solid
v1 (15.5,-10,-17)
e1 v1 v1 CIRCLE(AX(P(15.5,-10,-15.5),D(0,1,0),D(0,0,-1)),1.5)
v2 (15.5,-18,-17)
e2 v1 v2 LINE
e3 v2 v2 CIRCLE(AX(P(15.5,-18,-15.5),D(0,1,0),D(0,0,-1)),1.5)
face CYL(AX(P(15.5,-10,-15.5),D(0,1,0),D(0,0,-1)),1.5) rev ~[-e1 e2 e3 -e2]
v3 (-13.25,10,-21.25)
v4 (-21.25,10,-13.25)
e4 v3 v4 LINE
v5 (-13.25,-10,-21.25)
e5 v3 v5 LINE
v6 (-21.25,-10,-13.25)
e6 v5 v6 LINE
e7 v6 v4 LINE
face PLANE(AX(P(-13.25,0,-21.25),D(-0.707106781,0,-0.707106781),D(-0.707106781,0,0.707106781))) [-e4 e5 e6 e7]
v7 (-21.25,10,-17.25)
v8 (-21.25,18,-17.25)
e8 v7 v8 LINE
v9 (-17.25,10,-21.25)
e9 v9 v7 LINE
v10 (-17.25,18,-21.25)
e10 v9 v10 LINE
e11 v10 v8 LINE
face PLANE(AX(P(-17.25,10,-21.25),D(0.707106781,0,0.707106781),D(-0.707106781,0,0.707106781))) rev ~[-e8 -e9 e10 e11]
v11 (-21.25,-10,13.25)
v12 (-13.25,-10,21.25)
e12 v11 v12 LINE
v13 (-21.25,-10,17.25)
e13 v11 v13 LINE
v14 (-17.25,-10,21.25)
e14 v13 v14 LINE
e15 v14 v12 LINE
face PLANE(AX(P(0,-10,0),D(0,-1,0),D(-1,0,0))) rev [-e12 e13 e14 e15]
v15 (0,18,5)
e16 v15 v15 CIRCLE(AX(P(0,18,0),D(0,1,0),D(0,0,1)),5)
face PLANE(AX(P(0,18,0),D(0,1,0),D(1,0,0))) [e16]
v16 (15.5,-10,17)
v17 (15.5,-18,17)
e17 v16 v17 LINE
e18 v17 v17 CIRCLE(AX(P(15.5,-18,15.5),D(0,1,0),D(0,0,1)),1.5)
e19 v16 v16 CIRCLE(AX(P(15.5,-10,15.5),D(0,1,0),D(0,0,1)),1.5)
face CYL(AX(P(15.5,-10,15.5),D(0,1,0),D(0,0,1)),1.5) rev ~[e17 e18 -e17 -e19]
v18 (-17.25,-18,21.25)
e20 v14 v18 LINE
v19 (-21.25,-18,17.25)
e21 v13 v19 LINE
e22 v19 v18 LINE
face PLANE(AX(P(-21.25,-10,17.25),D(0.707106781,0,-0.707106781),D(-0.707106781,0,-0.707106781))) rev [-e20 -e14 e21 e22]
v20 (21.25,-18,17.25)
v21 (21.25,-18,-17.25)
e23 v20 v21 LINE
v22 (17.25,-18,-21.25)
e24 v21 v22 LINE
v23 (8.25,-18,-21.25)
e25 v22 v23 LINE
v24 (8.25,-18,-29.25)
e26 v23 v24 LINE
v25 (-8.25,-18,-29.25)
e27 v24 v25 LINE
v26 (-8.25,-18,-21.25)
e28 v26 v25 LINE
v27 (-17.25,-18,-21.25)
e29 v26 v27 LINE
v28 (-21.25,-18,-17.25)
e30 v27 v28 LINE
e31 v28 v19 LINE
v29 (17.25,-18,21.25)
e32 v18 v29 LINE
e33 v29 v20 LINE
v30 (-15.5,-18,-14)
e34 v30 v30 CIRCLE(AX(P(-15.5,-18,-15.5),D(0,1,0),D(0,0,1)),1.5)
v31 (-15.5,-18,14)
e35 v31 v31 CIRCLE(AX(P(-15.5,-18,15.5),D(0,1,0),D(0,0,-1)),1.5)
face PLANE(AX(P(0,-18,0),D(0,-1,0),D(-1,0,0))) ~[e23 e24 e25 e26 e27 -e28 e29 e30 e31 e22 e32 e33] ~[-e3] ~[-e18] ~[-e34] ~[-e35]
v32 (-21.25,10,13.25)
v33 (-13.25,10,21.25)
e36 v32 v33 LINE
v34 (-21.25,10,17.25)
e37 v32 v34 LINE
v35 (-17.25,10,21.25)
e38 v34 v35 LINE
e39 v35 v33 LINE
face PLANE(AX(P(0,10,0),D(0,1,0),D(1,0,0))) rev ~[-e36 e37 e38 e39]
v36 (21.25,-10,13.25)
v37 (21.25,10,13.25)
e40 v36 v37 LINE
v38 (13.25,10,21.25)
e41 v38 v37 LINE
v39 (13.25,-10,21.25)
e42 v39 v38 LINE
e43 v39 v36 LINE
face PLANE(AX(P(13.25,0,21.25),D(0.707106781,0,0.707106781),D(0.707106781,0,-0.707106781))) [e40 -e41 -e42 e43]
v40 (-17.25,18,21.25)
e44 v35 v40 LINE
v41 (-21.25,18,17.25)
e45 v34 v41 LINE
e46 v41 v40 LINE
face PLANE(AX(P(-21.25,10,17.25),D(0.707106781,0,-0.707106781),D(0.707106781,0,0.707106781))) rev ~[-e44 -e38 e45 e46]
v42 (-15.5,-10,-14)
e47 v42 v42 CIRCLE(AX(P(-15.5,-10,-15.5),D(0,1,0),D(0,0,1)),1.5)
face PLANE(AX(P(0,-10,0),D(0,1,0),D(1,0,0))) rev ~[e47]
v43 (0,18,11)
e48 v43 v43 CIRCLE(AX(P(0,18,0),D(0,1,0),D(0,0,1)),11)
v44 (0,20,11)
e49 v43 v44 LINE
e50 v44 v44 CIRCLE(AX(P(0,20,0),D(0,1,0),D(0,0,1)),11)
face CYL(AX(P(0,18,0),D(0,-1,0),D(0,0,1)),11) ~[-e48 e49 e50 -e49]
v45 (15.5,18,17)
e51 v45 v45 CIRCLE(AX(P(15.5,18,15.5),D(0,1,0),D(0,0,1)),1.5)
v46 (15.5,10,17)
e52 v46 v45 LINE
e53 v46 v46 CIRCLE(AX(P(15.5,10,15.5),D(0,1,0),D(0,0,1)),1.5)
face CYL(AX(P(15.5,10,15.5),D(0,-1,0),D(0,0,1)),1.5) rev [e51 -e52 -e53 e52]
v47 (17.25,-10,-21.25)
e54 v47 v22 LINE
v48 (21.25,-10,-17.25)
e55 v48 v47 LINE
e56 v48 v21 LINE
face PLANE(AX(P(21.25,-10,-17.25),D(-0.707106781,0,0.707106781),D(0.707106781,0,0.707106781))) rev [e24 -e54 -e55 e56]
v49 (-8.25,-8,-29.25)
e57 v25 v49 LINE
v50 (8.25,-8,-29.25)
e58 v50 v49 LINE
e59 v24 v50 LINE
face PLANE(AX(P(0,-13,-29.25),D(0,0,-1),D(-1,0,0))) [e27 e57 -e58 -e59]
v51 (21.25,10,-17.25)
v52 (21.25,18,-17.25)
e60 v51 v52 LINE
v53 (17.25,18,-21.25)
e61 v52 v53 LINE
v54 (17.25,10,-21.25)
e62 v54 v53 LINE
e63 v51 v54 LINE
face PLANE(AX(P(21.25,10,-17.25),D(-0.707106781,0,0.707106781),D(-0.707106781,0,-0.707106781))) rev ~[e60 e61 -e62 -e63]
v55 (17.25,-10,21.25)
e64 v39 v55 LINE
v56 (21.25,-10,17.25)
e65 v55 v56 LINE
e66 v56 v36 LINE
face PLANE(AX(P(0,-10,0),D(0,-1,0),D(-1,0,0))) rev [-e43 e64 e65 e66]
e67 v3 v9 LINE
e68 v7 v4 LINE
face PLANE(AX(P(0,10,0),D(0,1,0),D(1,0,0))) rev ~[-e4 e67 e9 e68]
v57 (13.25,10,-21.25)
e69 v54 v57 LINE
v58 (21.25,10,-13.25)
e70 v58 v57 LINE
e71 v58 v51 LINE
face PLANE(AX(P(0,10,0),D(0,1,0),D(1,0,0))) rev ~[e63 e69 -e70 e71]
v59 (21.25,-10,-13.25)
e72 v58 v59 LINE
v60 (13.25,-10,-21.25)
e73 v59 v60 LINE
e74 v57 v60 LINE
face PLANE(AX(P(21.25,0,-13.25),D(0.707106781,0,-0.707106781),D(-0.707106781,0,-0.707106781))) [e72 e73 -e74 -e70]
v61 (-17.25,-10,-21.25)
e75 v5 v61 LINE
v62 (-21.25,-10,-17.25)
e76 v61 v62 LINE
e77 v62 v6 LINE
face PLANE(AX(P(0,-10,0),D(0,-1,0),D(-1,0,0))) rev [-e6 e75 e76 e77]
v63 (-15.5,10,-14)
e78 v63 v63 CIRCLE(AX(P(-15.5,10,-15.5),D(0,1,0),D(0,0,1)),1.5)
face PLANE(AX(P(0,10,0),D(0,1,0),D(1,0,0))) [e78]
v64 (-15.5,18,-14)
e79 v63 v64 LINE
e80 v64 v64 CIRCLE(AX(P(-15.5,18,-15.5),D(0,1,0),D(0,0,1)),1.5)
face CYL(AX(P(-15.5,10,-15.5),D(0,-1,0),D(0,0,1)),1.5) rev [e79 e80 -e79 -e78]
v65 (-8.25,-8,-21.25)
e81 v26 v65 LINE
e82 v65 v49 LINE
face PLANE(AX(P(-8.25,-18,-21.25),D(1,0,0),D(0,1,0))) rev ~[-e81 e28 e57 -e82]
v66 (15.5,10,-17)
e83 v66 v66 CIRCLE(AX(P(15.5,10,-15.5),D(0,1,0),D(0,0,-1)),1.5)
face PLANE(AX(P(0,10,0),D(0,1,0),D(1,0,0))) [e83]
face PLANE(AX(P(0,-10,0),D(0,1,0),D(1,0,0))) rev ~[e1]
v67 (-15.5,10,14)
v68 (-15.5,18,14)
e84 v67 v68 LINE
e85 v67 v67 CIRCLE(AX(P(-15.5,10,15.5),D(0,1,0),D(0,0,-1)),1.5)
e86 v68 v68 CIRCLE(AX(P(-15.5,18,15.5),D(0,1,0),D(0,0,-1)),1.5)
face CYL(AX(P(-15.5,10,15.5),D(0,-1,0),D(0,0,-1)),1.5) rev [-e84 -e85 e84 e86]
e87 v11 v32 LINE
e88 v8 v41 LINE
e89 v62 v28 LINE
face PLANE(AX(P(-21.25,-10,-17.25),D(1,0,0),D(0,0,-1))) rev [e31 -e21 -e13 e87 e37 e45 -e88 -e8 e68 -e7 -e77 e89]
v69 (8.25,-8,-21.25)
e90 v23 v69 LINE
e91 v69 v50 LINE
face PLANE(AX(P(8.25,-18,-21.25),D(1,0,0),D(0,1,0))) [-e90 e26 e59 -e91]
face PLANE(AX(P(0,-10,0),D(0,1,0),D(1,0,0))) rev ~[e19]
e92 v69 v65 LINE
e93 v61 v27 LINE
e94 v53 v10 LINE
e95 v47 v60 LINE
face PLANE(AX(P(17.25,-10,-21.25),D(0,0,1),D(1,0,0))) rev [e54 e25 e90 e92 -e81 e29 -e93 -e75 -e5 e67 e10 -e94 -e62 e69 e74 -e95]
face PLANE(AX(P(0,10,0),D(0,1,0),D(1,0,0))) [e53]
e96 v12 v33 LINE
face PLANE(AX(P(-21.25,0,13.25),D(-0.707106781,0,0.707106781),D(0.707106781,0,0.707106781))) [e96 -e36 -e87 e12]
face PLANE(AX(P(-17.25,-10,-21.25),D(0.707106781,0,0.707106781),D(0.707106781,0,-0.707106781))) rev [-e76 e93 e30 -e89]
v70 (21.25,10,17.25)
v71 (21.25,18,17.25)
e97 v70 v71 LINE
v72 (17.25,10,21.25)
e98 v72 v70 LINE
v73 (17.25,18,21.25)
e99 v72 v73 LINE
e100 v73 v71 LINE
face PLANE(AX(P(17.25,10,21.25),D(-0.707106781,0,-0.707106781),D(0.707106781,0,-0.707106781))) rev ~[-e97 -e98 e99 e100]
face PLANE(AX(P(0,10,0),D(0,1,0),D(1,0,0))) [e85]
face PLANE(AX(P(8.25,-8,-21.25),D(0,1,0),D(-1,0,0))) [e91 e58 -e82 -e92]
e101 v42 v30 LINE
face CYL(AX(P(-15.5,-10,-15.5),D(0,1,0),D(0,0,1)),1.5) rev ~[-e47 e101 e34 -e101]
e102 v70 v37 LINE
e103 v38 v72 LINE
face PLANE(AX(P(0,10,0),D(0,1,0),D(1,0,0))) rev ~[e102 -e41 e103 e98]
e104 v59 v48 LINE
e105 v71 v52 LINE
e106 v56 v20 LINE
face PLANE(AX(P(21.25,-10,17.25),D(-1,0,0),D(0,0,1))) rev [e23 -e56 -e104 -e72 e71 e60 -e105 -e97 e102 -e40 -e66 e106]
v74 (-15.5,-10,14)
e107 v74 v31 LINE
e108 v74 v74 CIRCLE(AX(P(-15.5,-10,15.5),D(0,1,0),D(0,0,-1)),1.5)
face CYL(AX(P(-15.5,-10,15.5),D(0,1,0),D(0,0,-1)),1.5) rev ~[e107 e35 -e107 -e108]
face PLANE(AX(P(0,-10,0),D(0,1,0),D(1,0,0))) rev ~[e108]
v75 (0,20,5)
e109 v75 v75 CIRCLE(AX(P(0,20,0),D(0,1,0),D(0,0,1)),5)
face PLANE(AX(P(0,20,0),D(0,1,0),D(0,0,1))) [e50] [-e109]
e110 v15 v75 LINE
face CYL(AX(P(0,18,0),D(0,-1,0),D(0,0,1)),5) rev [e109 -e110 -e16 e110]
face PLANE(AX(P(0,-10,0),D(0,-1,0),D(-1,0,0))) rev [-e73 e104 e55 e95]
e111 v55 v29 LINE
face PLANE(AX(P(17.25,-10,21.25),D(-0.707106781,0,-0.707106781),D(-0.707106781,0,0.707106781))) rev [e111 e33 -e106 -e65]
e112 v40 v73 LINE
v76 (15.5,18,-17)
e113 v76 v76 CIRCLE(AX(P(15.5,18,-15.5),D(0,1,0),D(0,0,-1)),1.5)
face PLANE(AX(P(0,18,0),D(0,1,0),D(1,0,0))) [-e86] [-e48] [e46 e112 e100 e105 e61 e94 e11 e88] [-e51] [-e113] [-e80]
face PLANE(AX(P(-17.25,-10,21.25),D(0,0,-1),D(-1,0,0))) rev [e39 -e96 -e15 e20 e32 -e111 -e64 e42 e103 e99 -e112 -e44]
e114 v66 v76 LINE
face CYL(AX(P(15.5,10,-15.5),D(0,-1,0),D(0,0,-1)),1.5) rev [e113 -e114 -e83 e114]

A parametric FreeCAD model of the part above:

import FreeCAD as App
import Part
import Sketcher
from FreeCAD import Vector

doc = App.newDocument("Part")
body = doc.addObject("PartDesign::Body", "Body")

# Sketch on XZ plane
sketch1 = doc.addObject("Sketcher::SketchObject", "Sketch")
body.addObject(sketch1)
sketch1.AttachmentSupport = (doc.XZ_Plane, [""])
sketch1.MapMode = "FlatFace"
sketch1.addGeometry(Part.LineSegment(Vector(-13.25, -21.25, 0), Vector(-21.25, -13.25, 0)), False)
sketch1.addGeometry(Part.LineSegment(Vector(-21.25, -13.25, 0), Vector(-21.25, 13.25, 0)), False)
sketch1.addGeometry(Part.LineSegment(Vector(-21.25, 13.25, 0), Vector(-13.25, 21.25, 0)), False)
sketch1.addGeometry(Part.LineSegment(Vector(-13.25, 21.25, 0), Vector(13.25, 21.25, 0)), False)
sketch1.addGeometry(Part.LineSegment(Vector(13.25, 21.25, 0), Vector(21.25, 13.25, 0)), False)
sketch1.addGeometry(Part.LineSegment(Vector(21.25, 13.25, 0), Vector(21.25, -13.25, 0)), False)
sketch1.addGeometry(Part.LineSegment(Vector(21.25, -13.25, 0), Vector(13.25, -21.25, 0)), False)
sketch1.addGeometry(Part.LineSegment(Vector(13.25, -21.25, 0), Vector(-13.25, -21.25, 0)), False)
sketch1.addConstraint(Sketcher.Constraint("Coincident", 0, 2, 1, 1))
sketch1.addConstraint(Sketcher.Constraint("Coincident", 1, 2, 2, 1))
sketch1.addConstraint(Sketcher.Constraint("Coincident", 2, 2, 3, 1))
sketch1.addConstraint(Sketcher.Constraint("Coincident", 3, 2, 4, 1))
sketch1.addConstraint(Sketcher.Constraint("Coincident", 4, 2, 5, 1))
sketch1.addConstraint(Sketcher.Constraint("Coincident", 5, 2, 6, 1))
sketch1.addConstraint(Sketcher.Constraint("Coincident", 6, 2, 7, 1))
sketch1.addConstraint(Sketcher.Constraint("Coincident", 7, 2, 0, 1))
sketch1.addConstraint(Sketcher.Constraint("Vertical", 1))
sketch1.addConstraint(Sketcher.Constraint("Horizontal", 3))
sketch1.addConstraint(Sketcher.Constraint("Vertical", 5))
sketch1.addConstraint(Sketcher.Constraint("Horizontal", 7))
sketch1.addConstraint(Sketcher.Constraint("Symmetric", 0, 2, 4, 2, -1, 1))
sketch1.addConstraint(Sketcher.Constraint("Symmetric", 2, 2, 6, 2, -1, 1))
sketch1.addConstraint(Sketcher.Constraint("Perpendicular", 0, 2))
sketch1.addConstraint(Sketcher.Constraint("Perpendicular", 2, 4))
sketch1.addConstraint(Sketcher.Constraint("Perpendicular", 4, 6))
sketch1.addConstraint(Sketcher.Constraint("Horizontal", 1, 2, 4, 2))
sketch1.addConstraint(Sketcher.Constraint("Vertical", 3, 2, 6, 2))
sketch1.addConstraint(Sketcher.Constraint("Equal", 7, 1))
sketch1.addConstraint(Sketcher.Constraint("DistanceX", 3, 1, 3, 2, 26.5))
sketch1.addConstraint(Sketcher.Constraint("DistanceX", 1, 2, 2, 2, 8.0))
pad1 = doc.addObject("PartDesign::Pad", "Pad")
body.addObject(pad1)
pad1.Profile = sketch1
pad1.Length = 20
pad1.Midplane = True

# Sketch on XZ plane
sketch2 = doc.addObject("Sketcher::SketchObject", "Sketch001")
body.addObject(sketch2)
sketch2.AttachmentSupport = (doc.XZ_Plane, [""])
sketch2.MapMode = "FlatFace"
sketch2.AttachmentOffset = App.Placement(Vector(0, 0, -10), App.Rotation())
sketch2.addGeometry(Part.LineSegment(Vector(-17.25, -21.25, 0), Vector(-21.25, -17.25, 0)), False)
sketch2.addGeometry(Part.LineSegment(Vector(-21.25, -17.25, 0), Vector(-21.25, 17.25, 0)), False)
sketch2.addGeometry(Part.LineSegment(Vector(-21.25, 17.25, 0), Vector(-17.25, 21.25, 0)), False)
sketch2.addGeometry(Part.LineSegment(Vector(-17.25, 21.25, 0), Vector(17.25, 21.25, 0)), False)
sketch2.addGeometry(Part.LineSegment(Vector(17.25, 21.25, 0), Vector(21.25, 17.25, 0)), False)
sketch2.addGeometry(Part.LineSegment(Vector(21.25, 17.25, 0), Vector(21.25, -17.25, 0)), False)
sketch2.addGeometry(Part.LineSegment(Vector(21.25, -17.25, 0), Vector(17.25, -21.25, 0)), False)
sketch2.addGeometry(Part.LineSegment(Vector(17.25, -21.25, 0), Vector(-17.25, -21.25, 0)), False)
sketch2.addGeometry(Part.Circle(Vector(-15.5, 15.5, 0), Vector(0, 0, 1), 1.5), False)
sketch2.addGeometry(Part.Circle(Vector(15.5, 15.5, 0), Vector(0, 0, 1), 1.5), False)
sketch2.addGeometry(Part.Circle(Vector(-15.5, -15.5, 0), Vector(0, 0, 1), 1.5), False)
sketch2.addGeometry(Part.Circle(Vector(15.5, -15.5, 0), Vector(0, 0, 1), 1.5), False)
sketch2.addConstraint(Sketcher.Constraint("Coincident", 0, 2, 1, 1))
sketch2.addConstraint(Sketcher.Constraint("Coincident", 1, 2, 2, 1))
sketch2.addConstraint(Sketcher.Constraint("Coincident", 2, 2, 3, 1))
sketch2.addConstraint(Sketcher.Constraint("Coincident", 3, 2, 4, 1))
sketch2.addConstraint(Sketcher.Constraint("Coincident", 4, 2, 5, 1))
sketch2.addConstraint(Sketcher.Constraint("Coincident", 5, 2, 6, 1))
sketch2.addConstraint(Sketcher.Constraint("Coincident", 6, 2, 7, 1))
sketch2.addConstraint(Sketcher.Constraint("Coincident", 7, 2, 0, 1))
sketch2.addConstraint(Sketcher.Constraint("Vertical", 1))
sketch2.addConstraint(Sketcher.Constraint("Horizontal", 3))
sketch2.addConstraint(Sketcher.Constraint("Vertical", 5))
sketch2.addConstraint(Sketcher.Constraint("Horizontal", 7))
sketch2.addConstraint(Sketcher.Constraint("Equal", 8, 9))
sketch2.addConstraint(Sketcher.Constraint("Equal", 9, 10))
sketch2.addConstraint(Sketcher.Constraint("Equal", 10, 11))
sketch2.addConstraint(Sketcher.Constraint("Symmetric", 9, 3, 10, 3, -1, 1))
sketch2.addConstraint(Sketcher.Constraint("Symmetric", 8, 3, 11, 3, -1, 1))
sketch2.addConstraint(Sketcher.Constraint("Symmetric", 0, 2, 4, 2, -1, 1))
sketch2.addConstraint(Sketcher.Constraint("Symmetric", 2, 2, 6, 2, -1, 1))
sketch2.addConstraint(Sketcher.Constraint("Symmetric", 8, 3, 9, 3, -2))
sketch2.addConstraint(Sketcher.Constraint("Perpendicular", 0, 2))
sketch2.addConstraint(Sketcher.Constraint("Perpendicular", 2, 4))
sketch2.addConstraint(Sketcher.Constraint("Perpendicular", 4, 6))
sketch2.addConstraint(Sketcher.Constraint("Horizontal", 1, 2, 4, 2))
sketch2.addConstraint(Sketcher.Constraint("Vertical", 3, 2, 6, 2))
sketch2.addConstraint(Sketcher.Constraint("Equal", 7, 1))
sketch2.addConstraint(Sketcher.Constraint("Diameter", 8, 3.0))
sketch2.addConstraint(Sketcher.Constraint("DistanceX", 3, 1, 3, 2, 34.5))
sketch2.addConstraint(Sketcher.Constraint("DistanceX", 8, 3, 9, 3, 31.0))
sketch2.addConstraint(Sketcher.Constraint("DistanceY", 10, 3, 8, 3, 31.0))
sketch2.addConstraint(Sketcher.Constraint("DistanceX", 1, 2, 2, 2, 4.0))
pad2 = doc.addObject("PartDesign::Pad", "Pad001")
body.addObject(pad2)
pad2.Profile = sketch2
pad2.Length = 8
pad2.Reversed = True
doc.recompute()

mirrored = doc.addObject("PartDesign::Mirrored", "Mirrored")
body.addObject(mirrored)
mirrored.Originals = [pad2]
mirrored.MirrorPlane = (doc.XZ_Plane, [""])
body.Tip = mirrored

# Sketch on XY plane
sketch3 = doc.addObject("Sketcher::SketchObject", "Sketch002")
body.addObject(sketch3)
sketch3.AttachmentSupport = (doc.XY_Plane, [""])
sketch3.MapMode = "FlatFace"
sketch3.AttachmentOffset = App.Placement(Vector(0, 0, -21.25), App.Rotation())
sketch3.addGeometry(Part.LineSegment(Vector(8.25, -8, 0), Vector(8.25, -18, 0)), False)
sketch3.addGeometry(Part.LineSegment(Vector(8.25, -18, 0), Vector(-8.25, -18, 0)), False)
sketch3.addGeometry(Part.LineSegment(Vector(-8.25, -18, 0), Vector(-8.25, -8, 0)), False)
sketch3.addGeometry(Part.LineSegment(Vector(-8.25, -8, 0), Vector(8.25, -8, 0)), False)
sketch3.addConstraint(Sketcher.Constraint("Coincident", 0, 2, 1, 1))
sketch3.addConstraint(Sketcher.Constraint("Coincident", 1, 2, 2, 1))
sketch3.addConstraint(Sketcher.Constraint("Coincident", 2, 2, 3, 1))
sketch3.addConstraint(Sketcher.Constraint("Coincident", 3, 2, 0, 1))
sketch3.addConstraint(Sketcher.Constraint("Vertical", 0))
sketch3.addConstraint(Sketcher.Constraint("Horizontal", 1))
sketch3.addConstraint(Sketcher.Constraint("Vertical", 2))
sketch3.addConstraint(Sketcher.Constraint("Horizontal", 3))
sketch3.addConstraint(Sketcher.Constraint("DistanceY", 0, 2, 0, 1, 10.0))
sketch3.addConstraint(Sketcher.Constraint("DistanceX", 1, 2, 1, 1, 16.5))
sketch3.addConstraint(Sketcher.Constraint("DistanceY", 0, 2, -1, 1, 18.0))
sketch3.addConstraint(Sketcher.Constraint("DistanceX", -1, 1, 0, 2, 8.25))
pad3 = doc.addObject("PartDesign::Pad", "Pad002")
body.addObject(pad3)
pad3.Profile = sketch3
pad3.Length = 8
pad3.Reversed = True

# Sketch on XZ plane
sketch4 = doc.addObject("Sketcher::SketchObject", "Sketch003")
body.addObject(sketch4)
sketch4.AttachmentSupport = (doc.XZ_Plane, [""])
sketch4.MapMode = "FlatFace"
sketch4.AttachmentOffset = App.Placement(Vector(0, 0, -18), App.Rotation())
sketch4.addGeometry(Part.Circle(Vector(0, 0, 0), Vector(0, 0, 1), 11), False)
sketch4.addGeometry(Part.Circle(Vector(0, 0, 0), Vector(0, 0, 1), 5), False)
sketch4.addConstraint(Sketcher.Constraint("Coincident", 0, 3, -1, 1))
sketch4.addConstraint(Sketcher.Constraint("Coincident", 1, 3, -1, 1))
sketch4.addConstraint(Sketcher.Constraint("Diameter", 0, 22.0))
sketch4.addConstraint(Sketcher.Constraint("Diameter", 1, 10.0))
pad4 = doc.addObject("PartDesign::Pad", "Pad003")
body.addObject(pad4)
pad4.Profile = sketch4
pad4.Length = 2
pad4.Reversed = True

doc.recompute()
